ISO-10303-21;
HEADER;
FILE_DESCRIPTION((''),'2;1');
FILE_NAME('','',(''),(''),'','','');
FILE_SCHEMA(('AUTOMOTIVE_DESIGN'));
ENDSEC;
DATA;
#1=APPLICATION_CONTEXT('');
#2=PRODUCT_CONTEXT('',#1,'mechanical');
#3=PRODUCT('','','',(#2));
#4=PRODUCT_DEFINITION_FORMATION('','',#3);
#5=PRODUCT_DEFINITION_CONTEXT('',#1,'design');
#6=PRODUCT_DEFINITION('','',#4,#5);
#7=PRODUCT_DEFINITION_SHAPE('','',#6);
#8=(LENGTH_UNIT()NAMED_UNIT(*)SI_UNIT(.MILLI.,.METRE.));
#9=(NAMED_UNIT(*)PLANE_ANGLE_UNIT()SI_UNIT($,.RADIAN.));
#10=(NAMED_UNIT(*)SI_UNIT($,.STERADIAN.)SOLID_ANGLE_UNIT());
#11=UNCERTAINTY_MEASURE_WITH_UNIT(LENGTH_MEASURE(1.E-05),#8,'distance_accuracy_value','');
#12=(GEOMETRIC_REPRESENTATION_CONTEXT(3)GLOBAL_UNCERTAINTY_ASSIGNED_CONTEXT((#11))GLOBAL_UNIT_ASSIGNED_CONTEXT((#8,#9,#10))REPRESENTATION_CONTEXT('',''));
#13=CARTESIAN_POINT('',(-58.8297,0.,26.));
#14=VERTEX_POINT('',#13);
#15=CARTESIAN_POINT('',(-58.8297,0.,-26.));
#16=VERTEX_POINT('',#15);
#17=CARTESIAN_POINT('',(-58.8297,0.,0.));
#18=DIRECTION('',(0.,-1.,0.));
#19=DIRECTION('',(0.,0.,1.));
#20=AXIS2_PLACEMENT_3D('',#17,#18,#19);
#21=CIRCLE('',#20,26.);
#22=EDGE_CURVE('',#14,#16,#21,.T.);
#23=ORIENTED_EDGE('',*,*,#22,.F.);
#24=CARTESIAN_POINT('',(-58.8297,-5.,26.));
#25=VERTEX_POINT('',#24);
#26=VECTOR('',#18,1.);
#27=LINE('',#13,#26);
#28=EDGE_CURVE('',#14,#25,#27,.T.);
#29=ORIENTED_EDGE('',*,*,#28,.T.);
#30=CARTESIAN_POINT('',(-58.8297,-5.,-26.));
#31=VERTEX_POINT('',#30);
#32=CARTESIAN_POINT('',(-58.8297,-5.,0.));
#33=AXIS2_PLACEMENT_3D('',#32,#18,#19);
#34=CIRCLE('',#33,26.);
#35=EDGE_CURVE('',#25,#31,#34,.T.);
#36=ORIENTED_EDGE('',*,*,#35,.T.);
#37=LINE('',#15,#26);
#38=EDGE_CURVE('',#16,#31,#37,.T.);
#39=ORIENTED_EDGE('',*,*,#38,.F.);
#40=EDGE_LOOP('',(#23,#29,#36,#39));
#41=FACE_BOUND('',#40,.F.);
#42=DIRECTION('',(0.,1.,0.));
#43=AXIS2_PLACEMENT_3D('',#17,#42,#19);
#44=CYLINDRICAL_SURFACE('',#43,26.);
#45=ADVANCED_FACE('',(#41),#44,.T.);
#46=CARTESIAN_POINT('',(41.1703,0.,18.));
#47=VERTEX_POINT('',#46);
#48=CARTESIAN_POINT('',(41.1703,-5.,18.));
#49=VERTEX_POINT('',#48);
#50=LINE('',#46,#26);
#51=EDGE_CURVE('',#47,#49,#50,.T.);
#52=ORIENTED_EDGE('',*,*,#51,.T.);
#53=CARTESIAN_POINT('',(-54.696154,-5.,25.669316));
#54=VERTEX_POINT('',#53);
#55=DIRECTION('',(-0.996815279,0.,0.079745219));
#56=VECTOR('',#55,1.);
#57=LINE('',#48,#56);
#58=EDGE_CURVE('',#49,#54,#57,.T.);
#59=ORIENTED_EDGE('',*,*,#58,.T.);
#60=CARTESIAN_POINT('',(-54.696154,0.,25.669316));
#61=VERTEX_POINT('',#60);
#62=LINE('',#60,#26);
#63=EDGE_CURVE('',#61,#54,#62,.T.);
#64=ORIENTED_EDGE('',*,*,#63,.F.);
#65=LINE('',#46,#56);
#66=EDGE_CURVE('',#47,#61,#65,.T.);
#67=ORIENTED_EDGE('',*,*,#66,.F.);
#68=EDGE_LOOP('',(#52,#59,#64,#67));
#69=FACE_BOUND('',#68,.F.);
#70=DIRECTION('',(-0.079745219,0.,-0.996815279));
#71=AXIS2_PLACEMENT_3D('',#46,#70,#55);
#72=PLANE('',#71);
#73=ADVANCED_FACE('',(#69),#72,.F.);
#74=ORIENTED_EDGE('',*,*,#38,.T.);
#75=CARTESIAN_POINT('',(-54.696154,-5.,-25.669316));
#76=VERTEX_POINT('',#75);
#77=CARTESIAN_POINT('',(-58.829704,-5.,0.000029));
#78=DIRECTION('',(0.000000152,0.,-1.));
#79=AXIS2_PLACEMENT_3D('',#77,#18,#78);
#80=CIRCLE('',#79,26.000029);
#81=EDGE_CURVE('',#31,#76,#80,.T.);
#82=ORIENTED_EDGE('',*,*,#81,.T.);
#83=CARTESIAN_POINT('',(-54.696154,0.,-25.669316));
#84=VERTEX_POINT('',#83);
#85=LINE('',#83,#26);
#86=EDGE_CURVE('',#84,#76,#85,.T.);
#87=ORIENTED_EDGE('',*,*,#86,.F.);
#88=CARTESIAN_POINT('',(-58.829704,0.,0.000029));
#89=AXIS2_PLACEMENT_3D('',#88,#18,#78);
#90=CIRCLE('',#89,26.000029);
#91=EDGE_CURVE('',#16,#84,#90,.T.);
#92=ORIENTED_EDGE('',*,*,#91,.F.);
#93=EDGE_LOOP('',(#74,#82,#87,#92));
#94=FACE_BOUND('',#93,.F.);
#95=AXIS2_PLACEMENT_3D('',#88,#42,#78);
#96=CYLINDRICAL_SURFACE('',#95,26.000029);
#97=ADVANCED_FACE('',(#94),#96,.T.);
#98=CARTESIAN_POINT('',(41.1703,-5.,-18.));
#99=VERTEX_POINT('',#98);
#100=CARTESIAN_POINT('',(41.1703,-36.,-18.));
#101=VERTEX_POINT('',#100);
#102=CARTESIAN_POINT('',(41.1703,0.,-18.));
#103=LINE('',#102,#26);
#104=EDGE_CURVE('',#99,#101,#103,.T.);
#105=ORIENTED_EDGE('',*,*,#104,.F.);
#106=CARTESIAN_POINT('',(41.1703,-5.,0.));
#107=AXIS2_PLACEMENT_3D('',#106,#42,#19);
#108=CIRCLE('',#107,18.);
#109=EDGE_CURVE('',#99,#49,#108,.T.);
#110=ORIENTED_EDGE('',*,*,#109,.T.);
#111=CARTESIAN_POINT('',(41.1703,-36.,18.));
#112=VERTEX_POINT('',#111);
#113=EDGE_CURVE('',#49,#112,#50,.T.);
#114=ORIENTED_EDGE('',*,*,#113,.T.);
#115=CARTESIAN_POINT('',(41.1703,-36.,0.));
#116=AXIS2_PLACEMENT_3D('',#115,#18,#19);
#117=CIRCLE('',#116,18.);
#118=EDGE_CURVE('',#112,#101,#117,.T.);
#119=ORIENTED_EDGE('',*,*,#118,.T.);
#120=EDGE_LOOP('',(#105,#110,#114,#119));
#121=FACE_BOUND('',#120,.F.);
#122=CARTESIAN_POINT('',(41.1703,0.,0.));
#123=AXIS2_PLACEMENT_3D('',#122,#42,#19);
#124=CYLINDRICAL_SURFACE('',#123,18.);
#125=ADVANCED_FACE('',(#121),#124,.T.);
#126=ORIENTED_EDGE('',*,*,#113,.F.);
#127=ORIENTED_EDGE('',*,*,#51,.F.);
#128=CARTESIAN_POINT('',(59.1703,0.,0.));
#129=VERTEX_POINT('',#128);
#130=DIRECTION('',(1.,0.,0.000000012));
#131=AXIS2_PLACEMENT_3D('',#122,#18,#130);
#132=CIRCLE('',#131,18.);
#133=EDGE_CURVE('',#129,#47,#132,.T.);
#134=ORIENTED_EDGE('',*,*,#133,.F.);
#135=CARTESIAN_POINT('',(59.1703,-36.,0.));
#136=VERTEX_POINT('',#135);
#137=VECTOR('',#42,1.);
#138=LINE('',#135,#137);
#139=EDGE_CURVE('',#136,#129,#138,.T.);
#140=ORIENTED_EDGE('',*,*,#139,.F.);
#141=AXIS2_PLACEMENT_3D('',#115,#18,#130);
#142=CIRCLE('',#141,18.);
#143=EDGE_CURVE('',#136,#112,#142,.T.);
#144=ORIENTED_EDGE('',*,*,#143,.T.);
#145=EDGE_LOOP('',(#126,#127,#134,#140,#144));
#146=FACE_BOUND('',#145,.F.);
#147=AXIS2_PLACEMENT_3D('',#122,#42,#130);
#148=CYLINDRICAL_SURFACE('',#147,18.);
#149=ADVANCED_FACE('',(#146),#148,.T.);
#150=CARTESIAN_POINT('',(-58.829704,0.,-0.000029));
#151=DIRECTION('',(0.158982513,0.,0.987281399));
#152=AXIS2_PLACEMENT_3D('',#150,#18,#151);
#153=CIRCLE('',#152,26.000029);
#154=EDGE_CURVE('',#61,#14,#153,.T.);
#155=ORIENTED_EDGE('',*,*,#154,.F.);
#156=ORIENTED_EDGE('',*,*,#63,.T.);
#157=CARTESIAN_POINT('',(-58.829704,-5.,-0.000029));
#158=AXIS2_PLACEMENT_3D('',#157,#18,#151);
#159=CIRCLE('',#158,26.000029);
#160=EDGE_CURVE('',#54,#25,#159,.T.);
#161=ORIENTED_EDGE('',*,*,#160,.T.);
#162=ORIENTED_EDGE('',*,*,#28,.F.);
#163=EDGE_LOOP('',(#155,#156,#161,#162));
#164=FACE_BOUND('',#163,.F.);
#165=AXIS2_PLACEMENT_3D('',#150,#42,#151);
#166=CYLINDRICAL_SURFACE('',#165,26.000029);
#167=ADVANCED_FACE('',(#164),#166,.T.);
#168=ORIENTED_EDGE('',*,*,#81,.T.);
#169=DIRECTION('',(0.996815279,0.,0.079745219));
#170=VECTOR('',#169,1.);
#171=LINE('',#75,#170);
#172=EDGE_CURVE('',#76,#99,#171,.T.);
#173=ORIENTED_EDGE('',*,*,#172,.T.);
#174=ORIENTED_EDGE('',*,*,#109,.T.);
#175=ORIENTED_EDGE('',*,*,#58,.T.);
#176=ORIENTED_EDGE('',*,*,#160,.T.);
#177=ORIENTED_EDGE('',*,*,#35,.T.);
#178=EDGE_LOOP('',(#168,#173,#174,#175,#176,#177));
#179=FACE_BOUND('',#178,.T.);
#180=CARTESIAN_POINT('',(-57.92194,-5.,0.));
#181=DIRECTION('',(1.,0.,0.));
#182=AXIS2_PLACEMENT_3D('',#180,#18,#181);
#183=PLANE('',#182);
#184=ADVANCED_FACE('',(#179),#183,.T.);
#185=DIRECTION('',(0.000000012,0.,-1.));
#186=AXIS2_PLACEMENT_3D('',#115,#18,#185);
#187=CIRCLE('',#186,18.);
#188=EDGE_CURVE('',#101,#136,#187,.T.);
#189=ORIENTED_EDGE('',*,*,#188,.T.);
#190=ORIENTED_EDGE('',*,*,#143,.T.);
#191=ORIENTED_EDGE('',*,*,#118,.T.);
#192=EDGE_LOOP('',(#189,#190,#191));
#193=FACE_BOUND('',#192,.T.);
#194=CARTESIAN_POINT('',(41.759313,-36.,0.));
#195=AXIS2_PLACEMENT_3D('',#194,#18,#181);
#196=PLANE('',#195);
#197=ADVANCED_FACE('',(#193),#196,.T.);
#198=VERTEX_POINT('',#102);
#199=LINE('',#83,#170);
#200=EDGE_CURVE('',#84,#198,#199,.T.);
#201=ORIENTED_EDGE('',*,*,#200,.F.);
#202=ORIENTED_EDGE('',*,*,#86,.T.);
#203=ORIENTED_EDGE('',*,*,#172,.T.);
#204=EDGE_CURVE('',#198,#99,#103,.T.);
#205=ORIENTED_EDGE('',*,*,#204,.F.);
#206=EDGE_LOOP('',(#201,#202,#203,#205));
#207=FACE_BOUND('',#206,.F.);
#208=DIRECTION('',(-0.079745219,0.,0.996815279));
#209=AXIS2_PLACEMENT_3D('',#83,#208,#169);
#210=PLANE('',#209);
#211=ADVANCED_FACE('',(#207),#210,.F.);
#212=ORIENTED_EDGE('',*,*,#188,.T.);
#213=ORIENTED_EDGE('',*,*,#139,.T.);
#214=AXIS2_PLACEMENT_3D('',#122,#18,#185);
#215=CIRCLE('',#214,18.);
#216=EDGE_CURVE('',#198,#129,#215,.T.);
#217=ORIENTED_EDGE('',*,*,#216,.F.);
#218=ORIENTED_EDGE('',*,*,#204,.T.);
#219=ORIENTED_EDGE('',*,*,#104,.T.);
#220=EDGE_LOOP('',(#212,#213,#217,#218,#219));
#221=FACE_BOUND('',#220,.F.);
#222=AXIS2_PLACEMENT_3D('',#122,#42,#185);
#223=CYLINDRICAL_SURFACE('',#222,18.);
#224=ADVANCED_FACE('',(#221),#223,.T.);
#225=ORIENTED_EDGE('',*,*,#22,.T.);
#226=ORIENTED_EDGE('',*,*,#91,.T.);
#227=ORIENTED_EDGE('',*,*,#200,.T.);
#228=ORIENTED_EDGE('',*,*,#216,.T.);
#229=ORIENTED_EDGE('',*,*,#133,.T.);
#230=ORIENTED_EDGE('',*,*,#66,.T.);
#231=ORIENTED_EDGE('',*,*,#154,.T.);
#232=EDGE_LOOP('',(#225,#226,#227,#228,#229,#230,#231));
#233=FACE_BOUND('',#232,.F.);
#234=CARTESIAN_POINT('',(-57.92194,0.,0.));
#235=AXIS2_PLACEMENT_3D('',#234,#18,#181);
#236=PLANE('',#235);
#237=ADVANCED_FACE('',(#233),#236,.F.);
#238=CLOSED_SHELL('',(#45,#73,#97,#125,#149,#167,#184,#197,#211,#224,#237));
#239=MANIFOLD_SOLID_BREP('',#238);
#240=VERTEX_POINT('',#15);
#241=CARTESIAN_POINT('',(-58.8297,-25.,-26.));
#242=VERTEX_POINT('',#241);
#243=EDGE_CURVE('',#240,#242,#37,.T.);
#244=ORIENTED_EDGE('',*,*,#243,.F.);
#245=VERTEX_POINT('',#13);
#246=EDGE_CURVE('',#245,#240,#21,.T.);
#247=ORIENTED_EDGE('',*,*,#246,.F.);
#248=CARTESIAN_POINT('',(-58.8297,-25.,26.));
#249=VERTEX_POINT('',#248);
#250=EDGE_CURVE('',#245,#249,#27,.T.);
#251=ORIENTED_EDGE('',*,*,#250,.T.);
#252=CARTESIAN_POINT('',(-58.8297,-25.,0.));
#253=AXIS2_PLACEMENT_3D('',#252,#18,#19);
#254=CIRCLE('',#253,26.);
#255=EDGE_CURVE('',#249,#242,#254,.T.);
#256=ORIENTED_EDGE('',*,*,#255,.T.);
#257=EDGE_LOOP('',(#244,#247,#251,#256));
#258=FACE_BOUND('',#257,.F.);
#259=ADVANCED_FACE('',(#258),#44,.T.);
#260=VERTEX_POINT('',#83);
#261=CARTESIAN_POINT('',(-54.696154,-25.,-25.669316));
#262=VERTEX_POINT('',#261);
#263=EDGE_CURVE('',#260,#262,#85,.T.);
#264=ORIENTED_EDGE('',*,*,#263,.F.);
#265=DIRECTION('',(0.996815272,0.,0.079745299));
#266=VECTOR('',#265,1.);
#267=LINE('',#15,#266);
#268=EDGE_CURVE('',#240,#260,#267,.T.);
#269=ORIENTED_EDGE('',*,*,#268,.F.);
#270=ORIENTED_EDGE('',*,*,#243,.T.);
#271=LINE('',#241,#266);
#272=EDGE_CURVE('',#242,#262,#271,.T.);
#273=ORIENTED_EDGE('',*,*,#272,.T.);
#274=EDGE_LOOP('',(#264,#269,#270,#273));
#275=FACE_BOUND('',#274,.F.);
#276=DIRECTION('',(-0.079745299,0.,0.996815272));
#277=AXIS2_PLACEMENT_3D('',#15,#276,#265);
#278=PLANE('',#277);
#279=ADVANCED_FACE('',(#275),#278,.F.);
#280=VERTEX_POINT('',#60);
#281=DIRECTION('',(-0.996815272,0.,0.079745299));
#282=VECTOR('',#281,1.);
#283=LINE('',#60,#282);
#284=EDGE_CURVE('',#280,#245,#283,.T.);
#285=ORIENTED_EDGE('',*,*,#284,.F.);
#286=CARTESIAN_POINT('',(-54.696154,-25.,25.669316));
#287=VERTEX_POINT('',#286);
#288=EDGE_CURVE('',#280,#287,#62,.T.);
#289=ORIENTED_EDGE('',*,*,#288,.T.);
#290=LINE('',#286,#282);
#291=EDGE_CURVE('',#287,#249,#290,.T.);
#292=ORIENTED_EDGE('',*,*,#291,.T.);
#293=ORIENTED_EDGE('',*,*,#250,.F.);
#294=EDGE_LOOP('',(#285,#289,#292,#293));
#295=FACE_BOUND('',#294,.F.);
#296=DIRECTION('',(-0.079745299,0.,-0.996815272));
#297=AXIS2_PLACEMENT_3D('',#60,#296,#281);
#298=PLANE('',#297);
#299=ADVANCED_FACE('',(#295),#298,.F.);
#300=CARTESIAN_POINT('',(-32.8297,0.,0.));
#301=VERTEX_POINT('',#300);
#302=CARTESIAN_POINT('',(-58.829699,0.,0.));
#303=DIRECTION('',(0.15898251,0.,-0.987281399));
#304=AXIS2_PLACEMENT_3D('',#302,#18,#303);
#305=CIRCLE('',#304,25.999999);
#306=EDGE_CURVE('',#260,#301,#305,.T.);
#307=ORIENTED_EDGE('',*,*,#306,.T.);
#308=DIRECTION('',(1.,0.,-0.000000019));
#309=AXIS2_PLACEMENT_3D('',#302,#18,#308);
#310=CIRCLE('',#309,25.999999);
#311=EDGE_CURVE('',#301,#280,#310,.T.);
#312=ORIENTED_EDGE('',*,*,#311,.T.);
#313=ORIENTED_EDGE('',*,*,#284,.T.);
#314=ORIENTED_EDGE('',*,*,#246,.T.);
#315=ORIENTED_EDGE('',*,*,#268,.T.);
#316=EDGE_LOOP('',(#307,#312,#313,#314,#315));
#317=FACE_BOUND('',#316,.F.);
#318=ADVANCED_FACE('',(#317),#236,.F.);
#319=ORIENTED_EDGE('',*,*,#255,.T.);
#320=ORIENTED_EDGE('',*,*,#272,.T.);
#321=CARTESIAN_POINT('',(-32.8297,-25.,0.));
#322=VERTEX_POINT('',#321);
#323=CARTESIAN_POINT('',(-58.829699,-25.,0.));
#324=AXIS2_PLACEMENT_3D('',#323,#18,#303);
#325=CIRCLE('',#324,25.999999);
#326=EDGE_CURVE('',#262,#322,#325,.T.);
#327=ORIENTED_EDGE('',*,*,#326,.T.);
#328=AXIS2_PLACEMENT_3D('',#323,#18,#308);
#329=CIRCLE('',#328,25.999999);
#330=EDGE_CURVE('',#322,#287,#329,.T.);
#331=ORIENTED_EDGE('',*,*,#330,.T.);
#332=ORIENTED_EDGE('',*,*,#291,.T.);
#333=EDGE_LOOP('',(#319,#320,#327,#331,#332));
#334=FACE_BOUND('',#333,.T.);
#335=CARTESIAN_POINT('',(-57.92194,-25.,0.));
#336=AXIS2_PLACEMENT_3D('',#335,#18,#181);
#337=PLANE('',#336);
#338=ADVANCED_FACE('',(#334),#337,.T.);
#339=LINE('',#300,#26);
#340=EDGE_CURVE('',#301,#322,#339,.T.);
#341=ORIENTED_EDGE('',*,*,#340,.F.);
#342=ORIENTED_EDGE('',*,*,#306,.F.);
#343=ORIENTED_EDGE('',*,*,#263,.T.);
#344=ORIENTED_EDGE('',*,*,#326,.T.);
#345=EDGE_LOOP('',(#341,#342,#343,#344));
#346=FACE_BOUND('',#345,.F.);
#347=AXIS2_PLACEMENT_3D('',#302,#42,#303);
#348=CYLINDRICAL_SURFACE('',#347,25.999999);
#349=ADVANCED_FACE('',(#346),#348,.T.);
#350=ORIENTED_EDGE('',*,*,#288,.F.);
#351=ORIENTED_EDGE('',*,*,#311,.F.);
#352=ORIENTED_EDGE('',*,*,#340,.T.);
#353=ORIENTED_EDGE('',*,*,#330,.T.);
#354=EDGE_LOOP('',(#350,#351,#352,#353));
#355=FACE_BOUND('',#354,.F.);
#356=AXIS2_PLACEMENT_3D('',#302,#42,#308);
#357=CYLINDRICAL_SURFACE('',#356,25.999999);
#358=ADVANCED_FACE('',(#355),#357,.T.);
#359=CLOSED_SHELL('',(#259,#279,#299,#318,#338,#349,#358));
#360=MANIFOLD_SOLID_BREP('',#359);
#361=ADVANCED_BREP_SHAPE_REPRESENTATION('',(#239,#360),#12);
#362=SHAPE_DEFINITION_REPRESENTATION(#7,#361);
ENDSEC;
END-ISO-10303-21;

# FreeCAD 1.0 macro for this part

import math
import FreeCAD as App
import Part
import Sketcher

V = App.Vector

doc = App.newDocument("Part")
body = doc.addObject("PartDesign::Body", "Body")

# Sketch on XZ plane
sketch1 = body.newObject("Sketcher::SketchObject", "Sketch")
sketch1.AttachmentSupport = (doc.getObject("XZ_Plane"), [""])
sketch1.MapMode = "FlatFace"
sketch1.addGeometry(Part.LineSegment(V(-54.7, 25.7, 0), V(-58.8, 26, 0)), False)
sketch1.addGeometry(Part.ArcOfCircle(Part.Circle(V(-58.8, 0, 0), V(0, 0, 1), 26), math.radians(90), math.radians(270)), False)
sketch1.addGeometry(Part.LineSegment(V(-58.8, -26, 0), V(-54.7, -25.7, 0)), False)
sketch1.addGeometry(Part.ArcOfCircle(Part.Circle(V(-58.8, 0, 0), V(0, 0, 1), 26), math.radians(-81), math.radians(0)), False)
sketch1.addGeometry(Part.ArcOfCircle(Part.Circle(V(-58.8, 0, 0), V(0, 0, 1), 26), math.radians(0), math.radians(81)), False)
sketch1.addConstraint(Sketcher.Constraint("Coincident", 0, 2, 1, 1))
sketch1.addConstraint(Sketcher.Constraint("Coincident", 1, 2, 2, 1))
sketch1.addConstraint(Sketcher.Constraint("Coincident", 2, 2, 3, 1))
sketch1.addConstraint(Sketcher.Constraint("Tangent", 3, 2, 4, 1))
sketch1.addConstraint(Sketcher.Constraint("Coincident", 4, 2, 0, 1))
sketch1.addConstraint(Sketcher.Constraint("Coincident", 3, 3, 1, 3))
sketch1.addConstraint(Sketcher.Constraint("Equal", 1, 3))
sketch1.addConstraint(Sketcher.Constraint("Equal", 3, 4))
sketch1.addConstraint(Sketcher.Constraint("Symmetric", 0, 2, 1, 2, -1))
sketch1.addConstraint(Sketcher.Constraint("PointOnObject", 3, 2, -1))
sketch1.addConstraint(Sketcher.Constraint("Vertical", 4, 3, 0, 2))
sketch1.addConstraint(Sketcher.Constraint("Vertical", 2, 2, 4, 2))
sketch1.addConstraint(Sketcher.Constraint("Radius", 1, 26.0))
sketch1.addConstraint(Sketcher.Constraint("DistanceX", 1, 3, -1, 1, 58.8297))
sketch1.addConstraint(Sketcher.Constraint("Distance", 0, 4.146752))
pad1 = body.newObject("PartDesign::Pad", "Pad")
pad1.Profile = sketch1
pad1.Length = 25
body2 = doc.addObject("PartDesign::Body", "Body001")

# Sketch on XZ plane
sketch2 = body2.newObject("Sketcher::SketchObject", "Sketch001")
sketch2.AttachmentSupport = (doc.getObject("XZ_Plane001"), [""])
sketch2.MapMode = "FlatFace"
sketch2.addGeometry(Part.ArcOfCircle(Part.Circle(V(-58.8, 0, 0), V(0, 0, 1), 26), math.radians(90), math.radians(270)), False)
sketch2.addGeometry(Part.ArcOfCircle(Part.Circle(V(-58.8, 0, 0), V(0, 0, 1), 26), math.radians(-90), math.radians(-80.85)), False)
sketch2.addGeometry(Part.LineSegment(V(-54.7, -25.7, 0), V(41.2, -18, 0)), False)
sketch2.addGeometry(Part.ArcOfCircle(Part.Circle(V(41.2, 0, 0), V(0, 0, 1), 18), math.radians(-90), math.radians(0)), False)
sketch2.addGeometry(Part.ArcOfCircle(Part.Circle(V(41.2, 0, 0), V(0, 0, 1), 18), math.radians(0), math.radians(90)), False)
sketch2.addGeometry(Part.LineSegment(V(41.2, 18, 0), V(-54.7, 25.7, 0)), False)
sketch2.addGeometry(Part.ArcOfCircle(Part.Circle(V(-58.8, 0, 0), V(0, 0, 1), 26), math.radians(80.85), math.radians(90)), False)
sketch2.addConstraint(Sketcher.Constraint("Tangent", 0, 2, 1, 1))
sketch2.addConstraint(Sketcher.Constraint("Coincident", 1, 2, 2, 1))
sketch2.addConstraint(Sketcher.Constraint("Coincident", 2, 2, 3, 1))
sketch2.addConstraint(Sketcher.Constraint("Tangent", 3, 2, 4, 1))
sketch2.addConstraint(Sketcher.Constraint("Coincident", 4, 2, 5, 1))
sketch2.addConstraint(Sketcher.Constraint("Coincident", 5, 2, 6, 1))
sketch2.addConstraint(Sketcher.Constraint("Tangent", 6, 2, 0, 1))
sketch2.addConstraint(Sketcher.Constraint("Equal", 3, 4))
sketch2.addConstraint(Sketcher.Constraint("Equal", 1, 6))
sketch2.addConstraint(Sketcher.Constraint("Symmetric", 2, 2, 4, 2, -1))
sketch2.addConstraint(Sketcher.Constraint("Symmetric", 1, 2, 5, 2, -1))
sketch2.addConstraint(Sketcher.Constraint("PointOnObject", 3, 2, -1))
sketch2.addConstraint(Sketcher.Constraint("Vertical", 4, 3, 2, 2))
sketch2.addConstraint(Sketcher.Constraint("Vertical", 0, 2, 6, 2))
sketch2.addConstraint(Sketcher.Constraint("Radius", 0, 26.0))
sketch2.addConstraint(Sketcher.Constraint("Radius", 3, 18.0))
sketch2.addConstraint(Sketcher.Constraint("DistanceX", 0, 3, 3, 3, 100.0))
sketch2.addConstraint(Sketcher.Constraint("DistanceX", 0, 2, 4, 3, 100.0))
sketch2.addConstraint(Sketcher.Constraint("Radius", 1, 26.000029))
sketch2.addConstraint(Sketcher.Constraint("DistanceX", 0, 3, -1, 1, 58.8297))
sketch2.addConstraint(Sketcher.Constraint("DistanceX", 6, 3, 1, 2, 4.13355))
pad2 = body2.newObject("PartDesign::Pad", "Pad001")
pad2.Profile = sketch2
pad2.Length = 5

# Sketch on XZ plane
sketch3 = body2.newObject("Sketcher::SketchObject", "Sketch002")
sketch3.AttachmentSupport = (doc.getObject("XZ_Plane001"), [""])
sketch3.MapMode = "FlatFace"
sketch3.addGeometry(Part.ArcOfCircle(Part.Circle(V(41, 0, 0), V(0, 0, 1), 18), math.radians(0), math.radians(90)), False)
sketch3.addGeometry(Part.ArcOfCircle(Part.Circle(V(41, 0, 0), V(0, 0, 1), 18), math.radians(90), math.radians(270)), False)
sketch3.addGeometry(Part.ArcOfCircle(Part.Circle(V(41, 0, 0), V(0, 0, 1), 18), math.radians(-90), math.radians(0)), False)
sketch3.addConstraint(Sketcher.Constraint("Tangent", 0, 2, 1, 1))
sketch3.addConstraint(Sketcher.Constraint("Tangent", 1, 2, 2, 1))
sketch3.addConstraint(Sketcher.Constraint("Tangent", 2, 2, 0, 1))
sketch3.addConstraint(Sketcher.Constraint("Symmetric", 0, 2, 1, 2, -1))
sketch3.addConstraint(Sketcher.Constraint("PointOnObject", 2, 2, -1))
sketch3.addConstraint(Sketcher.Constraint("Vertical", 2, 3, 0, 2))
sketch3.addConstraint(Sketcher.Constraint("Radius", 0, 18.0))
sketch3.addConstraint(Sketcher.Constraint("DistanceX", -1, 1, 0, 3, 41.1703))
pad3 = body2.newObject("PartDesign::Pad", "Pad002")
pad3.Profile = sketch3
pad3.Length = 36

doc.recompute()
